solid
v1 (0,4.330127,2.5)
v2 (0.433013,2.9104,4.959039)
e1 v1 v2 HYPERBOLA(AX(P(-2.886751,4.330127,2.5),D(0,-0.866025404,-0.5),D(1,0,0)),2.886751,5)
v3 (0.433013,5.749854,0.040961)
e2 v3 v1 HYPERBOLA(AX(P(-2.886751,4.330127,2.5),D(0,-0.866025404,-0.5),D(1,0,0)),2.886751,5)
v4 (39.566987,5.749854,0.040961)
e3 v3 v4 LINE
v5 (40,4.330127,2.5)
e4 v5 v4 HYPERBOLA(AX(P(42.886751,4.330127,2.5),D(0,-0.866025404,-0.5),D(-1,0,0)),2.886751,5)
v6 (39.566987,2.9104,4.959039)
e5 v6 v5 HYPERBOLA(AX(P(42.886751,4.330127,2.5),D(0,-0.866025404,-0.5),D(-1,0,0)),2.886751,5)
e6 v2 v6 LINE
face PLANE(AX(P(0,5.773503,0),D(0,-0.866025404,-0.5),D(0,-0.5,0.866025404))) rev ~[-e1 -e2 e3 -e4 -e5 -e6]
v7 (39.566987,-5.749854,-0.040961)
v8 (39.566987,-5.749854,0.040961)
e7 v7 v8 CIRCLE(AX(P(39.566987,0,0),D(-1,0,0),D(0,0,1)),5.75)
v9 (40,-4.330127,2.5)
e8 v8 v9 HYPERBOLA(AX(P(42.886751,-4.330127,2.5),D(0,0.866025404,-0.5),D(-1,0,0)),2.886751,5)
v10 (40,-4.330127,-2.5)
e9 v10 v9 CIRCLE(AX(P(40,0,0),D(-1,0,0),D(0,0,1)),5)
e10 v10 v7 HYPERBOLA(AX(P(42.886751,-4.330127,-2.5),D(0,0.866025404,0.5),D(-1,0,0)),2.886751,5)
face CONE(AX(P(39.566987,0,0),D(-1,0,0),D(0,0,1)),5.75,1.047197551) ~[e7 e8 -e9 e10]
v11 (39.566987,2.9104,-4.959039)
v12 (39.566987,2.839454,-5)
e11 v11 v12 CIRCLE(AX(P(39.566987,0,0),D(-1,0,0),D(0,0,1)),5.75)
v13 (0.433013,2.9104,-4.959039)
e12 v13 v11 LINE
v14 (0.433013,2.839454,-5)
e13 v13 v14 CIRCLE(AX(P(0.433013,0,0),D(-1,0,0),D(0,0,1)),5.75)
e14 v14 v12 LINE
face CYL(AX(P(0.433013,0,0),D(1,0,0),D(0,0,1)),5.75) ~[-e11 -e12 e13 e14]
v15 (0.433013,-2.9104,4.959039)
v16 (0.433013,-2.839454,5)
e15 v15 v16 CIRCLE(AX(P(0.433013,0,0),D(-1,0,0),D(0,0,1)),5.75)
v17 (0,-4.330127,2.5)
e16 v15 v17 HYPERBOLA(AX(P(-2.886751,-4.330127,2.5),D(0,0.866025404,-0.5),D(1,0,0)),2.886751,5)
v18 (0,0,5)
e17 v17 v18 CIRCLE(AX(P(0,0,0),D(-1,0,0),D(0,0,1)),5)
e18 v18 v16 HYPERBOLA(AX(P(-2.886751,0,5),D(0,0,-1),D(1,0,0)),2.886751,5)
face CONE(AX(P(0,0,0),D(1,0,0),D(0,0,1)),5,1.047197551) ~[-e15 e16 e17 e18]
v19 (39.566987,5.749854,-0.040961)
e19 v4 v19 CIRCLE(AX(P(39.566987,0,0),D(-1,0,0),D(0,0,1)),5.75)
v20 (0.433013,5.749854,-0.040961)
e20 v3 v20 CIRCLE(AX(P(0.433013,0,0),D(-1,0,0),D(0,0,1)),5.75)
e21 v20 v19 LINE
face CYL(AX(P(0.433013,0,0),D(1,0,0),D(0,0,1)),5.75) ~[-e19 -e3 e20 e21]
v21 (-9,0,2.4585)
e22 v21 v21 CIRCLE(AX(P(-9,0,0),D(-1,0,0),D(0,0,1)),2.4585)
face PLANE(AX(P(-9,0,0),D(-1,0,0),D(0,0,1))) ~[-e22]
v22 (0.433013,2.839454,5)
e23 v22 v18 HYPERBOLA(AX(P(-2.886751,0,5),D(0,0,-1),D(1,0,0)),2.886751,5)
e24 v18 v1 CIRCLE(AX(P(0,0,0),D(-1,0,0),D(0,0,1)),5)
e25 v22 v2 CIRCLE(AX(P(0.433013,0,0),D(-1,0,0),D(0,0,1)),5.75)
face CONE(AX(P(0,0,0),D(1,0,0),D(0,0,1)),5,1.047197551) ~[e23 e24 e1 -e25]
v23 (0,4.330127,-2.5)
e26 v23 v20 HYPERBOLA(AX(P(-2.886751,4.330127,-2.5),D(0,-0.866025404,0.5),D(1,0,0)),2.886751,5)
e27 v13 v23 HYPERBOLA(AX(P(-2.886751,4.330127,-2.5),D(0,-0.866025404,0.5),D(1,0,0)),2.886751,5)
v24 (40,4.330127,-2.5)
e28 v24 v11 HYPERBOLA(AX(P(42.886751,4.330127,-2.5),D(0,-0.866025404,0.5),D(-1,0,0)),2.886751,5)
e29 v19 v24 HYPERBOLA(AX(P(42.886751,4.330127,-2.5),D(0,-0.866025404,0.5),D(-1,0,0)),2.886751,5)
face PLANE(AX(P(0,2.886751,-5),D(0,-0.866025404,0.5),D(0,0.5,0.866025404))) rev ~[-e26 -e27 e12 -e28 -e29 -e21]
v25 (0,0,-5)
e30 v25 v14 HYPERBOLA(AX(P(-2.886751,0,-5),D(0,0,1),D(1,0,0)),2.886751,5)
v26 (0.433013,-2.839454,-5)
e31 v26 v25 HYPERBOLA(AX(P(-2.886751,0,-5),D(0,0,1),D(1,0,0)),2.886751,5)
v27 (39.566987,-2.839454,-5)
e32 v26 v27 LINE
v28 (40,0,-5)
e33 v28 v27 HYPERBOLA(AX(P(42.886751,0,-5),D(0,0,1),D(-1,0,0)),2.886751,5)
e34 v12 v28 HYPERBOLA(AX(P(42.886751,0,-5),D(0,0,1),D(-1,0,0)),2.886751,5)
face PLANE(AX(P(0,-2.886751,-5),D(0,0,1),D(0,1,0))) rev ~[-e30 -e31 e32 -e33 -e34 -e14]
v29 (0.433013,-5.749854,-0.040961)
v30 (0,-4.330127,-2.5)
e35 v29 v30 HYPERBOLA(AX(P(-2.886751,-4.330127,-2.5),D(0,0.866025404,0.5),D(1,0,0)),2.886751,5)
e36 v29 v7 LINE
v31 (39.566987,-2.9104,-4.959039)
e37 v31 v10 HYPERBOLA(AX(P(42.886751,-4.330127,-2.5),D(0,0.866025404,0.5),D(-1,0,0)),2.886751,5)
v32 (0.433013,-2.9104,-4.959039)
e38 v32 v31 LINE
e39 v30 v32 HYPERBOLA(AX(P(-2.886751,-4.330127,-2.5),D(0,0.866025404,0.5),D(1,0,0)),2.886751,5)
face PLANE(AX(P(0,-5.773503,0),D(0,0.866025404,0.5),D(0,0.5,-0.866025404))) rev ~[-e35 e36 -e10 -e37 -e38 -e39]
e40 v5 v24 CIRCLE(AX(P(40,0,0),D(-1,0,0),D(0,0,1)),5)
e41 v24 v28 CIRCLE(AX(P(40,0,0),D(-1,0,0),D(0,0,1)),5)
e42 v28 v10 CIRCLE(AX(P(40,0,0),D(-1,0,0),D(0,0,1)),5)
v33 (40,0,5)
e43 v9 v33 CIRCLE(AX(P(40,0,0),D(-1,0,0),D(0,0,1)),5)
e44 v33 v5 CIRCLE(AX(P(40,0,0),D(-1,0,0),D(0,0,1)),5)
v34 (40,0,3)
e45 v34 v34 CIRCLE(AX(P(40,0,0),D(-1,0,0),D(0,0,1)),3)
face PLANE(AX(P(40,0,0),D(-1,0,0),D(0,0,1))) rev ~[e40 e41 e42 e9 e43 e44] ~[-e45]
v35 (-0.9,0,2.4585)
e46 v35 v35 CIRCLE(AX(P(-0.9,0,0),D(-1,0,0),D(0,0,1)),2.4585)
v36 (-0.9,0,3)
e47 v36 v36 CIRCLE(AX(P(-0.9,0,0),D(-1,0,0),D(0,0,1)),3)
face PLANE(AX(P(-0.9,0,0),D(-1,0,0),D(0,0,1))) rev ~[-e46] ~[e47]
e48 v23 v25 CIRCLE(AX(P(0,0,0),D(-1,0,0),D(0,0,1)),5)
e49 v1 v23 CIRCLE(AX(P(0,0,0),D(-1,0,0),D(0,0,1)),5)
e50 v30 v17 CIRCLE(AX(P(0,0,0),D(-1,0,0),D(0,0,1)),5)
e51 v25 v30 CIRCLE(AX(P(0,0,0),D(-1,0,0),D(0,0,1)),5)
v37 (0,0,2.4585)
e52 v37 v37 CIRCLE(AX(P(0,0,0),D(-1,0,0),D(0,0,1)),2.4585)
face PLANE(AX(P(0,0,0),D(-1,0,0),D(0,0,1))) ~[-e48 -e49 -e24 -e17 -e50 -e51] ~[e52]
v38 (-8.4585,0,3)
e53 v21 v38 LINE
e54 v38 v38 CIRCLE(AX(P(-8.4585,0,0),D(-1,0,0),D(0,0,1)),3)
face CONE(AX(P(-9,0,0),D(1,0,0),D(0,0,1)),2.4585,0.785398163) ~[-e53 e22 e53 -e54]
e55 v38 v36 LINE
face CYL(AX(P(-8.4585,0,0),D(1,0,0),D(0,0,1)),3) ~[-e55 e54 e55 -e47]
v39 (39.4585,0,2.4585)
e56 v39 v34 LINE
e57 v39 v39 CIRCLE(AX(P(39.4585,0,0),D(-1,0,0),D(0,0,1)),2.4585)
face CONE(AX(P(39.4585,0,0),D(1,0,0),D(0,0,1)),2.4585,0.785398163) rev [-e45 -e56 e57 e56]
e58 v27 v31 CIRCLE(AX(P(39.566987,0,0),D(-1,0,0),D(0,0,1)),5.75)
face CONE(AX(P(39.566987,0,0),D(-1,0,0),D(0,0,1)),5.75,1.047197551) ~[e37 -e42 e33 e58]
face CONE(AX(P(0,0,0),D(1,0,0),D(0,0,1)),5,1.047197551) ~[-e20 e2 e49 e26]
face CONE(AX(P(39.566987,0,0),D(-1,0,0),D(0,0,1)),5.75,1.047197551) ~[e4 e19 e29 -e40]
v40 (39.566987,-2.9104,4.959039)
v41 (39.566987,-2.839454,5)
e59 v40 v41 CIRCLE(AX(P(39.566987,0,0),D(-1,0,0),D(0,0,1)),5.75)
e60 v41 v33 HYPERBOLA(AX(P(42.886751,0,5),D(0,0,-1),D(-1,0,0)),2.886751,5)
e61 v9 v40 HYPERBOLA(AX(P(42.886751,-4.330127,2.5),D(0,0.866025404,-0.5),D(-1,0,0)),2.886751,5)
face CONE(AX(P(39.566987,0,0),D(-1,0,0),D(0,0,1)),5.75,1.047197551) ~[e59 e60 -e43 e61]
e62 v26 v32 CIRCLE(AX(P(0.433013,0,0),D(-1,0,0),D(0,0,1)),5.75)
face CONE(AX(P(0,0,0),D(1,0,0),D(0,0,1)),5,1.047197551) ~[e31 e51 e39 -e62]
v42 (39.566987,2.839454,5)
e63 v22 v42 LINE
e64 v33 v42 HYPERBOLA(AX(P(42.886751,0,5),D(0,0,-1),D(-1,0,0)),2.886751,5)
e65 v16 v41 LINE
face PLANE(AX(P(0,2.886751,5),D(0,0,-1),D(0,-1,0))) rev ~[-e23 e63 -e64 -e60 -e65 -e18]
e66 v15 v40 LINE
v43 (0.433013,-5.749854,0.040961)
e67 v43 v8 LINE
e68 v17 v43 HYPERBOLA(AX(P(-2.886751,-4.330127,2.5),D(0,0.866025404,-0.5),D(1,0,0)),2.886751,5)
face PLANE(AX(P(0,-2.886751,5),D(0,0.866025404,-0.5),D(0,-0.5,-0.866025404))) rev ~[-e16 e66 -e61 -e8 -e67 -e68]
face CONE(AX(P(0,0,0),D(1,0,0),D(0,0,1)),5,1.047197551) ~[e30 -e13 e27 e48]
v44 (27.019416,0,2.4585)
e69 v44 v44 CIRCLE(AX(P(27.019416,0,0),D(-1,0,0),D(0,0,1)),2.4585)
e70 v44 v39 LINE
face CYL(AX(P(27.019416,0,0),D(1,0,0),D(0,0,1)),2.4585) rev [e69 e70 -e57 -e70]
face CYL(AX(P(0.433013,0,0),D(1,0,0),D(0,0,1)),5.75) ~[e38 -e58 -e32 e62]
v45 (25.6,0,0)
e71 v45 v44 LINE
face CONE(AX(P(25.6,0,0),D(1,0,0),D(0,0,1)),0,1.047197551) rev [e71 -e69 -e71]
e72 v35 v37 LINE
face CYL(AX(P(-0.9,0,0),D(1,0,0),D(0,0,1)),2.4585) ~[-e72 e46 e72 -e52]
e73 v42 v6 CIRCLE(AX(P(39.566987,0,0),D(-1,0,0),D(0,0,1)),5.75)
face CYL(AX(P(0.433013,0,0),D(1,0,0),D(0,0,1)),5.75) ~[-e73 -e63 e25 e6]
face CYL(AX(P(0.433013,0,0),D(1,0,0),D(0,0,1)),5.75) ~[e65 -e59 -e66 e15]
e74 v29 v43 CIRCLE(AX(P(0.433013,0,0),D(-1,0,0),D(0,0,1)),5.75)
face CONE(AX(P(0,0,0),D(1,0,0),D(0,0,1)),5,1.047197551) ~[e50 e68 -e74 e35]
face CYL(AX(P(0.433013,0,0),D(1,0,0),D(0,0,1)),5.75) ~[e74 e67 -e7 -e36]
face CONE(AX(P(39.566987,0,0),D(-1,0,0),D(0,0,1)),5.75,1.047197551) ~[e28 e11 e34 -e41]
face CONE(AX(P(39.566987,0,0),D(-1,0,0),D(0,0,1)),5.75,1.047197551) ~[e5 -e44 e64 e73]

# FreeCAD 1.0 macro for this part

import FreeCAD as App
import Part
import Sketcher
Q = App.Units.Quantity


def add_polygon(sketch, points):
    """Adds a closed chain of lines whose ends are joined by coincident constraints."""
    first, n = sketch.GeometryCount, len(points)
    for a, b in zip(points, points[1:] + points[:1]):
        sketch.addGeometry(Part.LineSegment(App.Vector(*a, 0), App.Vector(*b, 0)), False)
    for i in range(n):
        sketch.addConstraint(Sketcher.Constraint("Coincident", first + i, 2, first + (i + 1) % n, 1))

doc = App.newDocument("Part")
body = doc.addObject("PartDesign::Body", "Body")

# Sketch on XY plane
sketch1 = body.newObject("Sketcher::SketchObject", "Sketch")
sketch1.AttachmentSupport = (doc.getObject("XY_Plane"), [""])
sketch1.MapMode = "FlatFace"
add_polygon(sketch1, [(0, 5), (0, 0), (40, 0), (40, 5), (39.6, 5.8), (0.4, 5.8)])  # lines 0-5
sketch1.addConstraint([
    Sketcher.Constraint("Vertical", 0),
    Sketcher.Constraint("Horizontal", 1),
    Sketcher.Constraint("Vertical", 2),
    Sketcher.Constraint("Horizontal", 4),
    Sketcher.Constraint("Coincident", 0, 2, -1, 1),
    Sketcher.Constraint("Horizontal", 2, 2, 5, 2),
    Sketcher.Constraint("Equal", 3, 5),
    Sketcher.Constraint("DistanceX", 1, 1, 1, 2, Q("40 mm")),
    Sketcher.Constraint("DistanceY", 0, 2, 0, 1, Q("5 mm")),
    Sketcher.Constraint("Angle", 3, Q("120 deg")),
    Sketcher.Constraint("DistanceY", -1, 1, 3, 2, Q("5.75 mm")),
])
revolution = body.newObject("PartDesign::Revolution", "Revolution")
revolution.Profile = sketch1
revolution.ReferenceAxis = (sketch1, ["H_Axis"])
revolution.Angle = 360

# Sketch on YZ plane
sketch2 = body.newObject("Sketcher::SketchObject", "Sketch001")
sketch2.AttachmentSupport = (doc.getObject("YZ_Plane"), [""])
sketch2.MapMode = "FlatFace"
add_polygon(sketch2, [(10, 10), (-10, 10), (-10, -10), (10, -10)])  # lines 0-3
add_polygon(sketch2, [(-3, 5), (3, 5), (6, 0), (3, -5), (-3, -5), (-6, 0)])  # lines 4-9
sketch2.addConstraint([
    Sketcher.Constraint("Horizontal", 0),
    Sketcher.Constraint("Vertical", 1),
    Sketcher.Constraint("Horizontal", 2),
    Sketcher.Constraint("Vertical", 3),
    Sketcher.Constraint("Horizontal", 4),
    Sketcher.Constraint("Horizontal", 7),
    Sketcher.Constraint("Symmetric", 0, 2, 2, 2, -1, 1),
    Sketcher.Constraint("Symmetric", 4, 2, 7, 2, -1, 1),
    Sketcher.Constraint("Symmetric", 5, 2, 8, 2, -1, 1),
    Sketcher.Constraint("PointOnObject", 5, 2, -1),
    Sketcher.Constraint("Parallel", 6, 9),
    Sketcher.Constraint("Vertical", 4, 2, 6, 2),
    Sketcher.Constraint("Equal", 2, 1),
    Sketcher.Constraint("DistanceX", 0, 2, 0, 1, Q("20 mm")),
    Sketcher.Constraint("Angle", 5, Q("-60 deg")),
    Sketcher.Constraint("DistanceY", -1, 1, 4, 2, Q("5 mm")),
    Sketcher.Constraint("DistanceX", 4, 1, 4, 2, Q("5.773503 mm")),
])
pocket1 = body.newObject("PartDesign::Pocket", "Pocket")
pocket1.Profile = sketch2
pocket1.Length = 40
pocket1.Reversed = True

# Sketch on XY plane
sketch3 = body.newObject("Sketcher::SketchObject", "Sketch002")
sketch3.AttachmentSupport = (doc.getObject("XY_Plane"), [""])
sketch3.MapMode = "FlatFace"
add_polygon(sketch3, [(27, 2.5), (25.6, 0), (40, 0), (40, 3), (39.5, 2.5)])  # lines 0-4
sketch3.addConstraint([
    Sketcher.Constraint("Horizontal", 1),
    Sketcher.Constraint("Vertical", 2),
    Sketcher.Constraint("Horizontal", 4),
    Sketcher.Constraint("PointOnObject", 0, 2, -1),
    Sketcher.Constraint("DistanceY", 2, 1, 2, 2, Q("3 mm")),
    Sketcher.Constraint("Angle", 0, Q("-120 deg")),
    Sketcher.Constraint("Angle", 3, Q("-135 deg")),
    Sketcher.Constraint("DistanceX", 1, 1, 1, 2, Q("14.4 mm")),
    Sketcher.Constraint("DistanceX", -1, 1, 1, 2, Q("40 mm")),
    Sketcher.Constraint("DistanceX", -1, 1, 3, 2, Q("39.4585 mm")),
])
groove = body.newObject("PartDesign::Groove", "Groove")
groove.Profile = sketch3
groove.ReferenceAxis = (sketch3, ["H_Axis"])
groove.Angle = 360

# Sketch on XY plane
sketch4 = body.newObject("Sketcher::SketchObject", "Sketch003")
sketch4.AttachmentSupport = (doc.getObject("XY_Plane"), [""])
sketch4.MapMode = "FlatFace"
add_polygon(sketch4, [(-9, 2.5), (-9, 0), (0, 0), (0, 2.5), (-0.9, 2.5), (-0.9, 3), (-8.5, 3)])  # lines 0-6
sketch4.addConstraint([
    Sketcher.Constraint("Vertical", 0),
    Sketcher.Constraint("Horizontal", 1),
    Sketcher.Constraint("Vertical", 2),
    Sketcher.Constraint("Horizontal", 3),
    Sketcher.Constraint("Vertical", 4),
    Sketcher.Constraint("Horizontal", 5),
    Sketcher.Constraint("Coincident", 1, 2, -1, 1),
    Sketcher.Constraint("Horizontal", 3, 2, 6, 2),
    Sketcher.Constraint("DistanceX", 1, 1, 1, 2, Q("9 mm")),
    Sketcher.Constraint("Angle", 6, Q("-135 deg")),
    Sketcher.Constraint("DistanceX", 3, 2, 3, 1, Q("0.9 mm")),
    Sketcher.Constraint("DistanceY", -1, 1, 4, 2, Q("3 mm")),
    Sketcher.Constraint("DistanceX", 5, 2, 5, 1, Q("7.5585 mm")),
])
revolution2 = body.newObject("PartDesign::Revolution", "Revolution001")
revolution2.Profile = sketch4
revolution2.ReferenceAxis = (sketch4, ["H_Axis"])
revolution2.Angle = 360

doc.recompute()
